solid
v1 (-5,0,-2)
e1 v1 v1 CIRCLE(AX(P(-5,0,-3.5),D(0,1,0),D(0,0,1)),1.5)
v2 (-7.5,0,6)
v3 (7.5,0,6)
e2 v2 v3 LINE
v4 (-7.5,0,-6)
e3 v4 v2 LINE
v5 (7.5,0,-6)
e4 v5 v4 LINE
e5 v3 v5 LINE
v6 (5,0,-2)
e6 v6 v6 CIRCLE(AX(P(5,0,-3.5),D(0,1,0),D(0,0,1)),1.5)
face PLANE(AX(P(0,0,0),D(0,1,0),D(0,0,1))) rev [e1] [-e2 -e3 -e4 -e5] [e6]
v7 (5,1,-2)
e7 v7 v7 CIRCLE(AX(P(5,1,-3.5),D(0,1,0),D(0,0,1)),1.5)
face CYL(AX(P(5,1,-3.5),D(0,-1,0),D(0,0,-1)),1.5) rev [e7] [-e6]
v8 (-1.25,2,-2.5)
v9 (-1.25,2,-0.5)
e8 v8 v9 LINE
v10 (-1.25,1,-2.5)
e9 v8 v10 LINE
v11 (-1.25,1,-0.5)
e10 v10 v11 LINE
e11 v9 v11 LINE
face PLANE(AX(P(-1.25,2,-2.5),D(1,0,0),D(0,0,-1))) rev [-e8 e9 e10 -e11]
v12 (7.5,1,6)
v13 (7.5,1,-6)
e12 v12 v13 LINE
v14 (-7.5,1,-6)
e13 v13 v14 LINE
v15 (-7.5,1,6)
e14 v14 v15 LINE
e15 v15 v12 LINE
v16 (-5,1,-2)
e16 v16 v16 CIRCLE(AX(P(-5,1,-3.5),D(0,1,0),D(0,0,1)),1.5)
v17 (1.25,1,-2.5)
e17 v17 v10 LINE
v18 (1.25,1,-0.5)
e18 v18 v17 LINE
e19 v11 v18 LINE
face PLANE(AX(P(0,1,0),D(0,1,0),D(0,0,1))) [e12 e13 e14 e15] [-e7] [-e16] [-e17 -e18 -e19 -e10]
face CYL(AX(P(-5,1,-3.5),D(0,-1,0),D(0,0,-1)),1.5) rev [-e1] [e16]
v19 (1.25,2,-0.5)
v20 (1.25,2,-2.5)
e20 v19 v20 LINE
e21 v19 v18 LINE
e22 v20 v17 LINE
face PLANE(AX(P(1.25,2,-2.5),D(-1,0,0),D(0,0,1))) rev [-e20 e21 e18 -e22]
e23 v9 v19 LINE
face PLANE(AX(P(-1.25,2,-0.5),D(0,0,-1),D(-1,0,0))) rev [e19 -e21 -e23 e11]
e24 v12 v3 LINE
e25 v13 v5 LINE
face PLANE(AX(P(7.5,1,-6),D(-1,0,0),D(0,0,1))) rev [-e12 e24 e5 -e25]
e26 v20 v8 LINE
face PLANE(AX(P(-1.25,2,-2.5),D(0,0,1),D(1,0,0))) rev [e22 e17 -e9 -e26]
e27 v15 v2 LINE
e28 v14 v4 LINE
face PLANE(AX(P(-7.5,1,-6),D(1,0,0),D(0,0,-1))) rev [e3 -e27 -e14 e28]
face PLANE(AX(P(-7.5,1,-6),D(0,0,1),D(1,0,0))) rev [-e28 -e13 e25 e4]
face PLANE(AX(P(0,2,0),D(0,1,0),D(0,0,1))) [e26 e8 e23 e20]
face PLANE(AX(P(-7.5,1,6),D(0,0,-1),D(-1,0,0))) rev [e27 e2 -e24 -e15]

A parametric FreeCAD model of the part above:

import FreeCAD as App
import Part
import Sketcher

V = App.Vector

doc = App.newDocument("Part")
body = doc.addObject("PartDesign::Body", "Body")

sketch1 = body.newObject("Sketcher::SketchObject", "Sketch")
sketch1.AttachmentSupport = (doc.getObject("XZ_Plane"), [""])
sketch1.MapMode = "FlatFace"
sketch1.addGeometry([
    Part.LineSegment(V(-7.5, -6, 0), V(-7.5, 6, 0)),
    Part.LineSegment(V(-7.5, 6, 0), V(7.5, 6, 0)),
    Part.LineSegment(V(7.5, 6, 0), V(7.5, -6, 0)),
    Part.LineSegment(V(7.5, -6, 0), V(-7.5, -6, 0)),
    Part.Circle(V(-5, -3.5, 0), V(0, 0, 1), 1.5),
    Part.Circle(V(5, -3.5, 0), V(0, 0, 1), 1.5),
], False)
sketch1.addConstraint([
    Sketcher.Constraint("Coincident", 0, 2, 1, 1),
    Sketcher.Constraint("Coincident", 1, 2, 2, 1),
    Sketcher.Constraint("Coincident", 2, 2, 3, 1),
    Sketcher.Constraint("Coincident", 3, 2, 0, 1),
    Sketcher.Constraint("Vertical", 0),
    Sketcher.Constraint("Horizontal", 1),
    Sketcher.Constraint("Vertical", 2),
    Sketcher.Constraint("Horizontal", 3),
    Sketcher.Constraint("Equal", 4, 5),
    Sketcher.Constraint("Symmetric", 0, 2, 2, 2, -1, 1),
    Sketcher.Constraint("Symmetric", 4, 3, 5, 3, -2),
    Sketcher.Constraint("Diameter", 4, 3.0),
    Sketcher.Constraint("DistanceX", 1, 1, 1, 2, 15.0),
    Sketcher.Constraint("DistanceY", 0, 1, 0, 2, 12.0),
    Sketcher.Constraint("DistanceX", 4, 3, -1, 1, 5.0),
    Sketcher.Constraint("DistanceY", 4, 3, -1, 1, 3.5),
])
pad1 = body.newObject("PartDesign::Pad", "Pad")
pad1.Profile = sketch1
pad1.Length = 1
pad1.Reversed = True

sketch2 = body.newObject("Sketcher::SketchObject", "Sketch001")
sketch2.AttachmentSupport = (doc.getObject("XZ_Plane"), [""])
sketch2.MapMode = "FlatFace"
sketch2.AttachmentOffset = App.Placement(V(0, 0, -1), App.Rotation())
sketch2.addGeometry([
    Part.LineSegment(V(-1.25, -2.5, 0), V(-1.25, -0.5, 0)),
    Part.LineSegment(V(-1.25, -0.5, 0), V(1.25, -0.5, 0)),
    Part.LineSegment(V(1.25, -0.5, 0), V(1.25, -2.5, 0)),
    Part.LineSegment(V(1.25, -2.5, 0), V(-1.25, -2.5, 0)),
], False)
sketch2.addConstraint([
    Sketcher.Constraint("Coincident", 0, 2, 1, 1),
    Sketcher.Constraint("Coincident", 1, 2, 2, 1),
    Sketcher.Constraint("Coincident", 2, 2, 3, 1),
    Sketcher.Constraint("Coincident", 3, 2, 0, 1),
    Sketcher.Constraint("Vertical", 0),
    Sketcher.Constraint("Horizontal", 1),
    Sketcher.Constraint("Vertical", 2),
    Sketcher.Constraint("Horizontal", 3),
    Sketcher.Constraint("DistanceY", 0, 1, 0, 2, 2.0),
    Sketcher.Constraint("DistanceX", 1, 1, 1, 2, 2.5),
    Sketcher.Constraint("DistanceY", 0, 2, -1, 1, 0.5),
    Sketcher.Constraint("DistanceX", 0, 2, -1, 1, 1.25),
])
pad2 = body.newObject("PartDesign::Pad", "Pad001")
pad2.Profile = sketch2
pad2.Length = 1
pad2.Reversed = True

doc.recompute()
